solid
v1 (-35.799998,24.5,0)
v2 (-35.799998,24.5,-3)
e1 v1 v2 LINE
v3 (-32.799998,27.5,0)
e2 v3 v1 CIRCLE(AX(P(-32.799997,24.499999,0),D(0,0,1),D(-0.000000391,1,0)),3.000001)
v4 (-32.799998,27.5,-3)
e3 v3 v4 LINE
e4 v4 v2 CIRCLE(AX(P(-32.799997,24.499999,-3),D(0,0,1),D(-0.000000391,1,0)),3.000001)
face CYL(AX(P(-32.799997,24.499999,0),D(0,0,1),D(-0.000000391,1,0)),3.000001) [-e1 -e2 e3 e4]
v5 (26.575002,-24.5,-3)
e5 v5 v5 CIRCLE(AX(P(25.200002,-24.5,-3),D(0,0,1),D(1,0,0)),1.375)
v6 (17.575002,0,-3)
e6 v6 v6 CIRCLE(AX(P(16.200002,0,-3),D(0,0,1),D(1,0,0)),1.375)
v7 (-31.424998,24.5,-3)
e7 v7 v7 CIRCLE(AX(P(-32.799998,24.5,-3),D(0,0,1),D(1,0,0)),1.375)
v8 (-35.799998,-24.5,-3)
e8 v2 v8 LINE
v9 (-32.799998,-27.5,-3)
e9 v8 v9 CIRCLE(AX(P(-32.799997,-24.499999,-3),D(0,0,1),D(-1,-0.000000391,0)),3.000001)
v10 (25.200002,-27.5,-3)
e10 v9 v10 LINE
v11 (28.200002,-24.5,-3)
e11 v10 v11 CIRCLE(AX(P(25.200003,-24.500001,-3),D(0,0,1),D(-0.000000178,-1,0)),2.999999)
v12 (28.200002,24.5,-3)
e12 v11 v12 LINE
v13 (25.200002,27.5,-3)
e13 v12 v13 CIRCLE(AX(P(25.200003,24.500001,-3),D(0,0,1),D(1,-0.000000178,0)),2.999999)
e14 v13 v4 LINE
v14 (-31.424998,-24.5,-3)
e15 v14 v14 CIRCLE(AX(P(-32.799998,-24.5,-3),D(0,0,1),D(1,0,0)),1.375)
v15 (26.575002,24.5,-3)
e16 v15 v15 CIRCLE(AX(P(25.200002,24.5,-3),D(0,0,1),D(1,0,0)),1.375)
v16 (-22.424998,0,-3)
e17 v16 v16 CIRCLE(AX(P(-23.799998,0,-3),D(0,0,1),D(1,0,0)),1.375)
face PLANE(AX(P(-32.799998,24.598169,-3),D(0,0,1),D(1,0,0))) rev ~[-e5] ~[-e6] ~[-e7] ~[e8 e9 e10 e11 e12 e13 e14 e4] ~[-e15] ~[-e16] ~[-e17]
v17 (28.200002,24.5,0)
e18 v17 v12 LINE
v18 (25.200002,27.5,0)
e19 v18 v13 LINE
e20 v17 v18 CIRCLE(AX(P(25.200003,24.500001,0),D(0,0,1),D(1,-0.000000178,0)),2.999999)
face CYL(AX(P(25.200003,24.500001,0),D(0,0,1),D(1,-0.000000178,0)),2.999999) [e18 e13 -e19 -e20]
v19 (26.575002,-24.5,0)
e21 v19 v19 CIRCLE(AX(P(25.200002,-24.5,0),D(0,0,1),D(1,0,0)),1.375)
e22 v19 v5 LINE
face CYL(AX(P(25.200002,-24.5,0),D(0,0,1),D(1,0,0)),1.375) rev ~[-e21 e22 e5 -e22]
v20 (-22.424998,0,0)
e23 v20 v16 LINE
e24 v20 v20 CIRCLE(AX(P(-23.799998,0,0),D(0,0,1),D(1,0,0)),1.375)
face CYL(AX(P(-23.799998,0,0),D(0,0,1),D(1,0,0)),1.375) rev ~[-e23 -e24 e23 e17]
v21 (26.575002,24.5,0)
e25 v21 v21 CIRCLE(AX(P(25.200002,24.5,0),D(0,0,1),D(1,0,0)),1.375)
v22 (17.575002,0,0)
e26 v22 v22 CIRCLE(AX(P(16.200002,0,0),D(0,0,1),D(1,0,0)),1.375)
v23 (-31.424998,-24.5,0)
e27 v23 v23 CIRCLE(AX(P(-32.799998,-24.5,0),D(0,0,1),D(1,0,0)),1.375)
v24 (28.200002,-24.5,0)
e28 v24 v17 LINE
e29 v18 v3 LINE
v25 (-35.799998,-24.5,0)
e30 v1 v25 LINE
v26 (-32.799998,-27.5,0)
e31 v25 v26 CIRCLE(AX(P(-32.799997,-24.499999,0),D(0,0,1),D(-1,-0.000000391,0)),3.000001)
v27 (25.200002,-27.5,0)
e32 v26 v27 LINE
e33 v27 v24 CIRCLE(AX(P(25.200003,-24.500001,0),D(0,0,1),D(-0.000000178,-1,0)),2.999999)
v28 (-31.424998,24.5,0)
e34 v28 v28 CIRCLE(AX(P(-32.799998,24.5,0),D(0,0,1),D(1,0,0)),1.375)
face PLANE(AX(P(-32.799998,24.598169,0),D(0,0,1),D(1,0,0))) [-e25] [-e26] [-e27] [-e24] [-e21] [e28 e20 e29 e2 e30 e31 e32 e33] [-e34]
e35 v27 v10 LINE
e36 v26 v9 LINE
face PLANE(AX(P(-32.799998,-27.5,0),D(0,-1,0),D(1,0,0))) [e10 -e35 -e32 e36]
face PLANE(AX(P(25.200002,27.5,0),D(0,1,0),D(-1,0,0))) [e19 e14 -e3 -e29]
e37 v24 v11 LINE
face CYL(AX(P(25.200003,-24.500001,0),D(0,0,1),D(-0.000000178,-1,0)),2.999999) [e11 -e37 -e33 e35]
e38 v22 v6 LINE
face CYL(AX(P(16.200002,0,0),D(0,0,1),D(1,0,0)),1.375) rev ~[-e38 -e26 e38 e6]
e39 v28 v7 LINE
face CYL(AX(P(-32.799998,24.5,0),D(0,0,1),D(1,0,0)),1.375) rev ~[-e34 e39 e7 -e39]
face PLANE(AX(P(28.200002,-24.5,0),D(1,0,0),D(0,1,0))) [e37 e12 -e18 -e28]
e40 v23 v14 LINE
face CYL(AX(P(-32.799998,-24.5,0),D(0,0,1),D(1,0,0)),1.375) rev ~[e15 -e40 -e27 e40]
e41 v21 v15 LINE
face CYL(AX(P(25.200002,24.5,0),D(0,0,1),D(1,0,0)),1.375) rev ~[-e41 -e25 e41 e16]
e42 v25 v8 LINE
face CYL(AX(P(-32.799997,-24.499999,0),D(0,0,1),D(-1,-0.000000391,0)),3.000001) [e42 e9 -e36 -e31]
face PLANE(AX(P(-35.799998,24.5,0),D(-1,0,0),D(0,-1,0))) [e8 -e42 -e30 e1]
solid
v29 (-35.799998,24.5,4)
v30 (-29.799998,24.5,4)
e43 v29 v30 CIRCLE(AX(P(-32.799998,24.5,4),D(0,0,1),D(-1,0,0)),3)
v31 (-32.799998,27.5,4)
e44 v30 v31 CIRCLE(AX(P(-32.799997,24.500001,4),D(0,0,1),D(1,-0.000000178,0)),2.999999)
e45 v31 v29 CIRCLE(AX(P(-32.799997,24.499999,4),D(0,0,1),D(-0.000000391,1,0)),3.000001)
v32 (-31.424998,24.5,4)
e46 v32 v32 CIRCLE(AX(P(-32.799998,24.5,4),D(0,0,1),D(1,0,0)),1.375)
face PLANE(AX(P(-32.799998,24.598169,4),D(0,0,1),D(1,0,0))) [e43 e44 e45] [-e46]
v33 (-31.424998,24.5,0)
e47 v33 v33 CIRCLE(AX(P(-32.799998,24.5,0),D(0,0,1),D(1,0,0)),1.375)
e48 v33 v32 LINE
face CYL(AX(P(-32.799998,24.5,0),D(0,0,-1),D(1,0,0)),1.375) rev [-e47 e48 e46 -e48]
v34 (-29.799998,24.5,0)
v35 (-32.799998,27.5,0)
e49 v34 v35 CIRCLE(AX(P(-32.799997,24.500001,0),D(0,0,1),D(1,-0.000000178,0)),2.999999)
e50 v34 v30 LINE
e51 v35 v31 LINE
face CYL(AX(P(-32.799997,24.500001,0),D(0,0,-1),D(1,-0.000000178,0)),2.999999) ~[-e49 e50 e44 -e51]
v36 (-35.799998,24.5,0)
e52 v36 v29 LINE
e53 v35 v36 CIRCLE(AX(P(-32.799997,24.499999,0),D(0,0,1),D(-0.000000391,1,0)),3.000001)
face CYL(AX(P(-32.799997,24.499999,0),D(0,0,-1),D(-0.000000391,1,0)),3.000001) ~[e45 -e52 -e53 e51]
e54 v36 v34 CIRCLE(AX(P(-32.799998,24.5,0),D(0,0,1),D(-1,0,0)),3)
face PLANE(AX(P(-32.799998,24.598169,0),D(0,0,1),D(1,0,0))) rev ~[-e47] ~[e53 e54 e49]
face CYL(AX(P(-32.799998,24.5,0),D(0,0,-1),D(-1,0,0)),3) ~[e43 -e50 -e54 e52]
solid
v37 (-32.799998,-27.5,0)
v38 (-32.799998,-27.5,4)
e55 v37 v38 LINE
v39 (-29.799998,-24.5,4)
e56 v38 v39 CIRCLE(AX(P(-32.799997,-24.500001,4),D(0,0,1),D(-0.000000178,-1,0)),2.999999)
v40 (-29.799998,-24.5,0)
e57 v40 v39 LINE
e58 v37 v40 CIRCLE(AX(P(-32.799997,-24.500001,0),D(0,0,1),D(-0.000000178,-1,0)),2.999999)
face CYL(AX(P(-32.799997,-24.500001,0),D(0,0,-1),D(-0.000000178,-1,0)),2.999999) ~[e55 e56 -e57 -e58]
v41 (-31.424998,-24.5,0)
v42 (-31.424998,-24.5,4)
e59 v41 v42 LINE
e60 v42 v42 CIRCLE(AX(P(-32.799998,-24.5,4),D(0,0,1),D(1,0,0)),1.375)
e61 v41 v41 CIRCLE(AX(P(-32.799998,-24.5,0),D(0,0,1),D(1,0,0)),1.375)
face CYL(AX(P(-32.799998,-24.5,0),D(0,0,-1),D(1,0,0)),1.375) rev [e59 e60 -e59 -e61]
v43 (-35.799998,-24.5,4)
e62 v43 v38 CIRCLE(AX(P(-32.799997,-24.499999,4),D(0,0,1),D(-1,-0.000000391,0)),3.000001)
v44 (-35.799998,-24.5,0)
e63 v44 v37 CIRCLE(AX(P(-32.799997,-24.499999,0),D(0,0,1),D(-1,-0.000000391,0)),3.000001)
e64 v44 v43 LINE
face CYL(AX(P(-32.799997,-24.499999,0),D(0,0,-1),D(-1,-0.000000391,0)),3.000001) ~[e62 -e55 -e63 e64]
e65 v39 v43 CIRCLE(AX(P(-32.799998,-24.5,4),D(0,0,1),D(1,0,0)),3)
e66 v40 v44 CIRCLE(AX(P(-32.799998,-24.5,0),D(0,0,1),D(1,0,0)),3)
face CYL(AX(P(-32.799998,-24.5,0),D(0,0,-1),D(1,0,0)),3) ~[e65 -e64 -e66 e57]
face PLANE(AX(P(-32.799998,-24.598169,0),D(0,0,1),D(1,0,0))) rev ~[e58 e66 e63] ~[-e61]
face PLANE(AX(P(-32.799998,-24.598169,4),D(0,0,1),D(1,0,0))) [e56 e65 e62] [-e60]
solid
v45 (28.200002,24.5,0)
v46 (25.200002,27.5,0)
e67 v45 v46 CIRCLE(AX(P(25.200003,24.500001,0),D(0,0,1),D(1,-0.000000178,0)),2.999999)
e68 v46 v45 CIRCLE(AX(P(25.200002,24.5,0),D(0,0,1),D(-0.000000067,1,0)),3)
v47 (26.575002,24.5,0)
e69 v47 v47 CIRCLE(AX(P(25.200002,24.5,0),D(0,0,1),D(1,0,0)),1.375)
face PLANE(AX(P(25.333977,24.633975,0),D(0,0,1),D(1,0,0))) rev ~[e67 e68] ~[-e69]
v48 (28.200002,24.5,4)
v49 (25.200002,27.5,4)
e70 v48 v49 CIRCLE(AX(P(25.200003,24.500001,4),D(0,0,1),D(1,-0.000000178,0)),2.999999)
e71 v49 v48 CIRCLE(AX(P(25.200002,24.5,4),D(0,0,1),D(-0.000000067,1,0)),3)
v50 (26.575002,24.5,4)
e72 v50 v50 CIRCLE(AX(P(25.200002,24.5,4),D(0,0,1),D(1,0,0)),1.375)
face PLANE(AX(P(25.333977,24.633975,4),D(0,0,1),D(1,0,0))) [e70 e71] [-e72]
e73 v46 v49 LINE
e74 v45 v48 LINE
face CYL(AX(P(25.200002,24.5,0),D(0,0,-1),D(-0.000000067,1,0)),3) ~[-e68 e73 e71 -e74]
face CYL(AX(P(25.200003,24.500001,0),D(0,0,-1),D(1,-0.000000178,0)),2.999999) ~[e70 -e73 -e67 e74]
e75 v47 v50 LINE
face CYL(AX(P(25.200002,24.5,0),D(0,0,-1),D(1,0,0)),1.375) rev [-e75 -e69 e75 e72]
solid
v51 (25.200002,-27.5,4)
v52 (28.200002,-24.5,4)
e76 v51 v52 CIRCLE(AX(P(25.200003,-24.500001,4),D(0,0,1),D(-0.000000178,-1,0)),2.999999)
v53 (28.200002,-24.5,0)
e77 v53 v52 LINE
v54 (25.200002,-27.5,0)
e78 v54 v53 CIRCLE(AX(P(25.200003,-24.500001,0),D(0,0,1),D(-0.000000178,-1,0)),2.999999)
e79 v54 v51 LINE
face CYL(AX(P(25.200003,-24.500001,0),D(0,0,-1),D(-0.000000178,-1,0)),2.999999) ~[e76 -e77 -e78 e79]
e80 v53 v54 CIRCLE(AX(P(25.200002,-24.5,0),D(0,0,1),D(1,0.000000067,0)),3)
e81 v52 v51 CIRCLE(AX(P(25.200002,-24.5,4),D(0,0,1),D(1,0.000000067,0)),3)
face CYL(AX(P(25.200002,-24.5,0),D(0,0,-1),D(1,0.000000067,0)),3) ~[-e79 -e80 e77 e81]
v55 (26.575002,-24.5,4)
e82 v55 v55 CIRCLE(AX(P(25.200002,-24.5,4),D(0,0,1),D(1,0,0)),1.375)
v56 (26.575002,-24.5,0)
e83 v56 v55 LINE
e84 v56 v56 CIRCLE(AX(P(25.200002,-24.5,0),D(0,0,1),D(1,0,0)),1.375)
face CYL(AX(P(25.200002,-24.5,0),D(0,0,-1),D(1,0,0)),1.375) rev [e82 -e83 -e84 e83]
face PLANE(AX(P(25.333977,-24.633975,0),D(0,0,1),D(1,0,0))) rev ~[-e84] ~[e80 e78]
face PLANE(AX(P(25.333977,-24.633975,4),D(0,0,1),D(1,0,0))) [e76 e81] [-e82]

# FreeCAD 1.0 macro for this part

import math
import FreeCAD as App
import Part
import Sketcher

V = App.Vector
Q = App.Units.Quantity

doc = App.newDocument("Part")
body = doc.addObject("PartDesign::Body", "Body")

sketch1 = doc.addObject("Sketcher::SketchObject", "Sketch")
body.addObject(sketch1)
sketch1.AttachmentSupport = (doc.XY_Plane, [""])
sketch1.MapMode = "FlatFace"
sketch1.addGeometry([
    Part.ArcOfCircle(Part.Circle(V(-32.8, 24.5, 0), V(0, 0, 1), 3), math.radians(90), math.radians(180)),
    Part.LineSegment(V(-35.8, 24.5, 0), V(-35.8, -24.5, 0)),
    Part.ArcOfCircle(Part.Circle(V(-32.8, -24.5, 0), V(0, 0, 1), 3), math.radians(-180), math.radians(-90)),
    Part.LineSegment(V(-32.8, -27.5, 0), V(25.2, -27.5, 0)),
    Part.ArcOfCircle(Part.Circle(V(25.2, -24.5, 0), V(0, 0, 1), 3), math.radians(-90), math.radians(0)),
    Part.LineSegment(V(28.2, -24.5, 0), V(28.2, 24.5, 0)),
    Part.ArcOfCircle(Part.Circle(V(25.2, 24.5, 0), V(0, 0, 1), 3), math.radians(0), math.radians(90)),
    Part.LineSegment(V(25.2, 27.5, 0), V(-32.8, 27.5, 0)),
    Part.Circle(V(-32.8, -24.5, 0), V(0, 0, 1), 1.4),
    Part.Circle(V(-23.8, 0, 0), V(0, 0, 1), 1.4),
    Part.Circle(V(25.2, -24.5, 0), V(0, 0, 1), 1.4),
    Part.Circle(V(16.2, 0, 0), V(0, 0, 1), 1.4),
    Part.Circle(V(-32.8, 24.5, 0), V(0, 0, 1), 1.4),
    Part.Circle(V(25.2, 24.5, 0), V(0, 0, 1), 1.4),
], False)
sketch1.addConstraint([
    Sketcher.Constraint("Tangent", 0, 2, 1, 1),
    Sketcher.Constraint("Tangent", 1, 2, 2, 1),
    Sketcher.Constraint("Tangent", 2, 2, 3, 1),
    Sketcher.Constraint("Tangent", 3, 2, 4, 1),
    Sketcher.Constraint("Tangent", 4, 2, 5, 1),
    Sketcher.Constraint("Tangent", 5, 2, 6, 1),
    Sketcher.Constraint("Tangent", 6, 2, 7, 1),
    Sketcher.Constraint("Tangent", 7, 2, 0, 1),
    Sketcher.Constraint("Vertical", 1),
    Sketcher.Constraint("Horizontal", 3),
    Sketcher.Constraint("Vertical", 5),
    Sketcher.Constraint("Horizontal", 7),
    Sketcher.Constraint("Coincident", 8, 3, 2, 3),
    Sketcher.Constraint("Coincident", 10, 3, 4, 3),
    Sketcher.Constraint("Coincident", 12, 3, 0, 3),
    Sketcher.Constraint("Coincident", 13, 3, 6, 3),
    Sketcher.Constraint("Equal", 0, 2),
    Sketcher.Constraint("Equal", 2, 4),
    Sketcher.Constraint("Equal", 4, 6),
    Sketcher.Constraint("Equal", 8, 9),
    Sketcher.Constraint("Equal", 9, 10),
    Sketcher.Constraint("Equal", 10, 11),
    Sketcher.Constraint("Equal", 11, 12),
    Sketcher.Constraint("Equal", 12, 13),
    Sketcher.Constraint("PointOnObject", 9, 3, -1),
    Sketcher.Constraint("PointOnObject", 11, 3, -1),
    Sketcher.Constraint("Radius", 0, Q("3.000001 mm")),
    Sketcher.Constraint("Diameter", 8, Q("2.75 mm")),
    Sketcher.Constraint("DistanceX", 3, 1, 3, 2, Q("58 mm")),
    Sketcher.Constraint("DistanceY", 1, 2, 1, 1, Q("49 mm")),
    Sketcher.Constraint("DistanceX", 0, 3, 9, 3, Q("8.999999 mm")),
    Sketcher.Constraint("DistanceX", 11, 3, 10, 3, Q("9 mm")),
    Sketcher.Constraint("DistanceY", -1, 1, 0, 3, Q("24.499999 mm")),
    Sketcher.Constraint("DistanceX", 8, 3, -1, 1, Q("32.799998 mm")),
])
pad1 = doc.addObject("PartDesign::Pad", "Pad")
body.addObject(pad1)
pad1.Profile = sketch1
pad1.Length = 3
pad1.Reversed = True
body2 = doc.addObject("PartDesign::Body", "Body001")
body2.AllowCompound = True

sketch2 = doc.addObject("Sketcher::SketchObject", "Sketch001")
body2.addObject(sketch2)
sketch2.AttachmentSupport = (doc.getObject("XY_Plane001"), [""])
sketch2.MapMode = "FlatFace"
sketch2.addGeometry([
    Part.ArcOfCircle(Part.Circle(V(-32.8, 24.5, 0), V(0, 0, 1), 3), math.radians(0), math.radians(90)),
    Part.ArcOfCircle(Part.Circle(V(-32.8, 24.5, 0), V(0, 0, 1), 3), math.radians(90), math.radians(180)),
    Part.ArcOfCircle(Part.Circle(V(-32.8, 24.5, 0), V(0, 0, 1), 3), math.radians(180), math.radians(360)),
    Part.Circle(V(-32.8, 24.5, 0), V(0, 0, 1), 1.4),
    Part.ArcOfCircle(Part.Circle(V(25.2, 24.5, 0), V(0, 0, 1), 3), math.radians(0), math.radians(90)),
    Part.ArcOfCircle(Part.Circle(V(25.2, 24.5, 0), V(0, 0, 1), 3), math.radians(90), math.radians(360)),
    Part.Circle(V(25.2, 24.5, 0), V(0, 0, 1), 1.4),
    Part.ArcOfCircle(Part.Circle(V(-32.8, -24.5, 0), V(0, 0, 1), 3), math.radians(0), math.radians(180)),
    Part.ArcOfCircle(Part.Circle(V(-32.8, -24.5, 0), V(0, 0, 1), 3), math.radians(-180), math.radians(-90)),
    Part.ArcOfCircle(Part.Circle(V(-32.8, -24.5, 0), V(0, 0, 1), 3), math.radians(-90), math.radians(0)),
    Part.Circle(V(-32.8, -24.5, 0), V(0, 0, 1), 1.4),
    Part.ArcOfCircle(Part.Circle(V(25.2, -24.5, 0), V(0, 0, 1), 3), math.radians(-90), math.radians(0)),
    Part.ArcOfCircle(Part.Circle(V(25.2, -24.5, 0), V(0, 0, 1), 3), math.radians(0), math.radians(270)),
    Part.Circle(V(25.2, -24.5, 0), V(0, 0, 1), 1.4),
], False)
sketch2.addConstraint([
    Sketcher.Constraint("Tangent", 0, 2, 1, 1),
    Sketcher.Constraint("Tangent", 1, 2, 2, 1),
    Sketcher.Constraint("Tangent", 2, 2, 0, 1),
    Sketcher.Constraint("Tangent", 4, 1, 5, 2),
    Sketcher.Constraint("Coincident", 5, 1, 4, 2),
    Sketcher.Constraint("Tangent", 7, 2, 8, 1),
    Sketcher.Constraint("Tangent", 8, 2, 9, 1),
    Sketcher.Constraint("Tangent", 9, 2, 7, 1),
    Sketcher.Constraint("Tangent", 11, 1, 12, 2),
    Sketcher.Constraint("Coincident", 12, 1, 11, 2),
    Sketcher.Constraint("Coincident", 3, 3, 0, 3),
    Sketcher.Constraint("Coincident", 6, 3, 4, 3),
    Sketcher.Constraint("Coincident", 10, 3, 7, 3),
    Sketcher.Constraint("Coincident", 13, 3, 11, 3),
    Sketcher.Constraint("Equal", 2, 4),
    Sketcher.Constraint("Equal", 3, 6),
    Sketcher.Constraint("Equal", 5, 7),
    Sketcher.Constraint("Equal", 6, 10),
    Sketcher.Constraint("Equal", 9, 11),
    Sketcher.Constraint("Equal", 10, 13),
    Sketcher.Constraint("Symmetric", 0, 3, 7, 3, -1),
    Sketcher.Constraint("Symmetric", 4, 3, 11, 3, -1),
    Sketcher.Constraint("Horizontal", 3, 3, 4, 3),
    Sketcher.Constraint("Horizontal", 6, 3, 1, 2),
    Sketcher.Constraint("Horizontal", 1, 2, 2, 2),
    Sketcher.Constraint("Horizontal", 2, 2, 4, 1),
    Sketcher.Constraint("Horizontal", 13, 3, 7, 2),
    Sketcher.Constraint("Horizontal", 7, 2, 9, 2),
    Sketcher.Constraint("Horizontal", 9, 2, 12, 1),
    Sketcher.Constraint("Vertical", 10, 3, 0, 2),
    Sketcher.Constraint("Vertical", 13, 3, 5, 1),
    Sketcher.Constraint("Vertical", 0, 2, 8, 2),
    Sketcher.Constraint("Vertical", 5, 1, 11, 1),
    Sketcher.Constraint("Radius", 0, Q("2.999999 mm")),
    Sketcher.Constraint("Diameter", 3, Q("2.75 mm")),
    Sketcher.Constraint("DistanceX", 1, 3, 4, 3, Q("57.999999 mm")),
    Sketcher.Constraint("DistanceY", 7, 3, 1, 3, Q("48.999999 mm")),
    Sketcher.Constraint("DistanceX", 2, 3, -1, 1, Q("32.799998 mm")),
])
pad2 = doc.addObject("PartDesign::Pad", "Pad001")
body2.addObject(pad2)
pad2.Profile = sketch2
pad2.Length = 4

doc.recompute()
